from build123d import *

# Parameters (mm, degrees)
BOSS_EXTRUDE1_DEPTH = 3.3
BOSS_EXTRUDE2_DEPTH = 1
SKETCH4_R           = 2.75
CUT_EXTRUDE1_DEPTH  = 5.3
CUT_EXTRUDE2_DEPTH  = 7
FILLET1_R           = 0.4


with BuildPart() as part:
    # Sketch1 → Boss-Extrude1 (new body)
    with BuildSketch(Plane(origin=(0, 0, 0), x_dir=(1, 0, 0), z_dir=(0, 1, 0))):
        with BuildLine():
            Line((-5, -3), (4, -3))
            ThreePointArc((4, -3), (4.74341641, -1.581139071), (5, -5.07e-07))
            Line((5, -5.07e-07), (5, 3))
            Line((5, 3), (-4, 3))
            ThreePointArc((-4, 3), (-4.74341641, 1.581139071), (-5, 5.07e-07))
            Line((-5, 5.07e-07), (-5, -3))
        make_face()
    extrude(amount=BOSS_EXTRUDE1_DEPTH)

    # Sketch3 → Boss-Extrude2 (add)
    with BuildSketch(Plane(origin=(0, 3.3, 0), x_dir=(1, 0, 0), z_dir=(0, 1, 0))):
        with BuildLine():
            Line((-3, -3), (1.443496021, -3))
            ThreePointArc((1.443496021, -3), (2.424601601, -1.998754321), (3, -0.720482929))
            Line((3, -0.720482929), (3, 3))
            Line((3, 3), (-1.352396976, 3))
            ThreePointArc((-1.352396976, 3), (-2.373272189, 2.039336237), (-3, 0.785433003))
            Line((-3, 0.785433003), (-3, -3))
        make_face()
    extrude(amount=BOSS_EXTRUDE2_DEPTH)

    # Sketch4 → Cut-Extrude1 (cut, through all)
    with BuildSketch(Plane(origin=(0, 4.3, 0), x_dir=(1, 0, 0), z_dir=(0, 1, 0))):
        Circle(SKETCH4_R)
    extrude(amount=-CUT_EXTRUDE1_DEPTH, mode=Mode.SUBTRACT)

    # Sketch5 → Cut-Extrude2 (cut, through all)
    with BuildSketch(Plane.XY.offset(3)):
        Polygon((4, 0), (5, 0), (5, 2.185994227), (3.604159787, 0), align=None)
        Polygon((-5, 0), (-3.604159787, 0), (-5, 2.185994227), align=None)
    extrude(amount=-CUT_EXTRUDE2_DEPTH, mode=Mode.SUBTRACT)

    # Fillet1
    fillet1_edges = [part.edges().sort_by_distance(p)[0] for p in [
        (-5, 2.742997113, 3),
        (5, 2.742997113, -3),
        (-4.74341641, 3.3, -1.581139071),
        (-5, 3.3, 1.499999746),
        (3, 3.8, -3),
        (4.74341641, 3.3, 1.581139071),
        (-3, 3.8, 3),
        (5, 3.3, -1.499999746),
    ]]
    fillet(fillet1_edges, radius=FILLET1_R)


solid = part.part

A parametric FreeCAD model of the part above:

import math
import FreeCAD as App
import Part
import Sketcher


def edges_at(feature, points):
    """Names of the edges that pass closest to the given points."""
    edges = feature.Shape.Edges
    near = lambda p: min(range(len(edges)), key=lambda i: edges[i].distToShape(Part.Vertex(*p))[0])
    return sorted({f"Edge{near(p) + 1}" for p in points})


def add_polygon(sketch, points):
    """Adds a closed chain of lines whose ends are joined by coincident constraints."""
    first, n = sketch.GeometryCount, len(points)
    for a, b in zip(points, points[1:] + points[:1]):
        sketch.addGeometry(Part.LineSegment(App.Vector(*a, 0), App.Vector(*b, 0)), False)
    for i in range(n):
        sketch.addConstraint(Sketcher.Constraint("Coincident", first + i, 2, first + (i + 1) % n, 1))

doc = App.newDocument("Part")
body = doc.addObject("PartDesign::Body", "Body")

sketch1 = doc.addObject("Sketcher::SketchObject", "Sketch")
body.addObject(sketch1)
sketch1.AttachmentSupport = (doc.XZ_Plane, [""])
sketch1.MapMode = "FlatFace"
sketch1.addGeometry(Part.LineSegment(App.Vector(-5, 3, 0), App.Vector(4, 3, 0)), False)
sketch1.addGeometry(Part.ArcOfCircle(Part.Circle(App.Vector(0, 0, 0), App.Vector(0, 0, 1), 5), math.radians(0), math.radians(37)), False)
sketch1.addGeometry(Part.LineSegment(App.Vector(5, 0, 0), App.Vector(5, -3, 0)), False)
sketch1.addGeometry(Part.LineSegment(App.Vector(5, -3, 0), App.Vector(-4, -3, 0)), False)
sketch1.addGeometry(Part.ArcOfCircle(Part.Circle(App.Vector(0, 0, 0), App.Vector(0, 0, 1), 5), math.radians(-180), math.radians(-143)), False)
sketch1.addGeometry(Part.LineSegment(App.Vector(-5, 0, 0), App.Vector(-5, 3, 0)), False)
sketch1.addConstraint(Sketcher.Constraint("Coincident", 0, 2, 1, 2))
sketch1.addConstraint(Sketcher.Constraint("Tangent", 1, 1, 2, 1))
sketch1.addConstraint(Sketcher.Constraint("Coincident", 2, 2, 3, 1))
sketch1.addConstraint(Sketcher.Constraint("Coincident", 3, 2, 4, 2))
sketch1.addConstraint(Sketcher.Constraint("Tangent", 4, 1, 5, 1))
sketch1.addConstraint(Sketcher.Constraint("Coincident", 5, 2, 0, 1))
sketch1.addConstraint(Sketcher.Constraint("Horizontal", 0))
sketch1.addConstraint(Sketcher.Constraint("Vertical", 2))
sketch1.addConstraint(Sketcher.Constraint("Horizontal", 3))
sketch1.addConstraint(Sketcher.Constraint("Vertical", 5))
sketch1.addConstraint(Sketcher.Constraint("Coincident", 1, 3, -1, 1))
sketch1.addConstraint(Sketcher.Constraint("Coincident", 4, 3, -1, 1))
sketch1.addConstraint(Sketcher.Constraint("Equal", 1, 4))
sketch1.addConstraint(Sketcher.Constraint("Equal", 0, 3))
sketch1.addConstraint(Sketcher.Constraint("Radius", 1, 5.0))
sketch1.addConstraint(Sketcher.Constraint("DistanceX", 0, 1, 0, 2, 9.0))
pad1 = doc.addObject("PartDesign::Pad", "Pad")
body.addObject(pad1)
pad1.Profile = sketch1
pad1.Length = 3.3
pad1.Reversed = True

sketch2 = doc.addObject("Sketcher::SketchObject", "Sketch001")
body.addObject(sketch2)
sketch2.AttachmentSupport = (doc.XZ_Plane, [""])
sketch2.MapMode = "FlatFace"
sketch2.AttachmentOffset = App.Placement(App.Vector(0, 0, -3.3), App.Rotation())
sketch2.addGeometry(Part.LineSegment(App.Vector(-3, 3, 0), App.Vector(1.4, 3, 0)), False)
sketch2.addGeometry(Part.ArcOfCircle(Part.Circle(App.Vector(-0.9, -0.3, 0), App.Vector(0, 0, 1), 4), math.radians(14), math.radians(55)), False)
sketch2.addGeometry(Part.LineSegment(App.Vector(3, 0.7, 0), App.Vector(3, -3, 0)), False)
sketch2.addGeometry(Part.LineSegment(App.Vector(3, -3, 0), App.Vector(-1.4, -3, 0)), False)
sketch2.addGeometry(Part.ArcOfCircle(Part.Circle(App.Vector(0.8, 0.3, 0), App.Vector(0, 0, 1), 4), math.radians(-164), math.radians(-123)), False)
sketch2.addGeometry(Part.LineSegment(App.Vector(-3, -0.8, 0), App.Vector(-3, 3, 0)), False)
sketch2.addConstraint(Sketcher.Constraint("Coincident", 0, 2, 1, 2))
sketch2.addConstraint(Sketcher.Constraint("Coincident", 1, 1, 2, 1))
sketch2.addConstraint(Sketcher.Constraint("Coincident", 2, 2, 3, 1))
sketch2.addConstraint(Sketcher.Constraint("Coincident", 3, 2, 4, 2))
sketch2.addConstraint(Sketcher.Constraint("Coincident", 4, 1, 5, 1))
sketch2.addConstraint(Sketcher.Constraint("Coincident", 5, 2, 0, 1))
sketch2.addConstraint(Sketcher.Constraint("Horizontal", 0))
sketch2.addConstraint(Sketcher.Constraint("Vertical", 2))
sketch2.addConstraint(Sketcher.Constraint("Horizontal", 3))
sketch2.addConstraint(Sketcher.Constraint("Vertical", 5))
sketch2.addConstraint(Sketcher.Constraint("Equal", 1, 4))
sketch2.addConstraint(Sketcher.Constraint("Symmetric", 2, 2, 5, 2, -1, 1))
sketch2.addConstraint(Sketcher.Constraint("Radius", 1, 4.0))
sketch2.addConstraint(Sketcher.Constraint("DistanceY", -1, 1, 0, 2, 3.0))
sketch2.addConstraint(Sketcher.Constraint("DistanceX", -1, 1, 1, 1, 3.0))
sketch2.addConstraint(Sketcher.Constraint("DistanceX", 0, 1, 0, 2, 4.443496))
sketch2.addConstraint(Sketcher.Constraint("DistanceX", 3, 2, 3, 1, 4.352397))
sketch2.addConstraint(Sketcher.Constraint("DistanceY", 2, 2, 2, 1, 3.720483))
sketch2.addConstraint(Sketcher.Constraint("DistanceY", 5, 1, 5, 2, 3.785433))
pad2 = doc.addObject("PartDesign::Pad", "Pad001")
body.addObject(pad2)
pad2.Profile = sketch2
pad2.Length = 1
pad2.Reversed = True

sketch3 = doc.addObject("Sketcher::SketchObject", "Sketch002")
body.addObject(sketch3)
sketch3.AttachmentSupport = (doc.XZ_Plane, [""])
sketch3.MapMode = "FlatFace"
sketch3.AttachmentOffset = App.Placement(App.Vector(0, 0, -4.3), App.Rotation())
sketch3.addGeometry(Part.Circle(App.Vector(0, 0, 0), App.Vector(0, 0, 1), 2.8), False)
sketch3.addConstraint(Sketcher.Constraint("Coincident", 0, 3, -1, 1))
sketch3.addConstraint(Sketcher.Constraint("Diameter", 0, 5.5))
pocket1 = doc.addObject("PartDesign::Pocket", "Pocket")
body.addObject(pocket1)
pocket1.Profile = sketch3
pocket1.Type = "ThroughAll"
pocket1.Reversed = True

sketch4 = doc.addObject("Sketcher::SketchObject", "Sketch003")
body.addObject(sketch4)
sketch4.AttachmentSupport = (doc.XY_Plane, [""])
sketch4.MapMode = "FlatFace"
sketch4.AttachmentOffset = App.Placement(App.Vector(0, 0, 3), App.Rotation())
add_polygon(sketch4, [(5, 0), (5, 2.2), (3.6, 0)])
add_polygon(sketch4, [(-5, 0), (-3.6, 0), (-5, 2.2)])
sketch4.addConstraint(Sketcher.Constraint("Vertical", 0))
sketch4.addConstraint(Sketcher.Constraint("Horizontal", 2))
sketch4.addConstraint(Sketcher.Constraint("Horizontal", 3))
sketch4.addConstraint(Sketcher.Constraint("Vertical", 5))
sketch4.addConstraint(Sketcher.Constraint("Symmetric", 1, 2, 3, 2, -1, 1))
sketch4.addConstraint(Sketcher.Constraint("Symmetric", 0, 2, 4, 2, -2))
sketch4.addConstraint(Sketcher.Constraint("PointOnObject", 1, 2, -1))
sketch4.addConstraint(Sketcher.Constraint("DistanceX", -1, 1, 0, 2, 5.0))
sketch4.addConstraint(Sketcher.Constraint("DistanceX", 2, 1, 2, 2, 1.39584))
sketch4.addConstraint(Sketcher.Constraint("DistanceY", 0, 1, 0, 2, 2.185994))
pocket2 = doc.addObject("PartDesign::Pocket", "Pocket001")
body.addObject(pocket2)
pocket2.Profile = sketch4
pocket2.Type = "ThroughAll"
doc.recompute()

fillet = doc.addObject("PartDesign::Fillet", "Fillet")
body.addObject(fillet)
fillet.Base = (pocket2, edges_at(pocket2, [
    (-5, 2.743, 3),
    (5, 2.743, -3),
    (-4.743, 3.3, -1.581),
    (-5, 3.3, 1.5),
    (3, 3.8, -3),
    (4.743, 3.3, 1.581),
    (-3, 3.8, 3),
    (5, 3.3, -1.5),
]))
fillet.Radius = 0.4

doc.recompute()
